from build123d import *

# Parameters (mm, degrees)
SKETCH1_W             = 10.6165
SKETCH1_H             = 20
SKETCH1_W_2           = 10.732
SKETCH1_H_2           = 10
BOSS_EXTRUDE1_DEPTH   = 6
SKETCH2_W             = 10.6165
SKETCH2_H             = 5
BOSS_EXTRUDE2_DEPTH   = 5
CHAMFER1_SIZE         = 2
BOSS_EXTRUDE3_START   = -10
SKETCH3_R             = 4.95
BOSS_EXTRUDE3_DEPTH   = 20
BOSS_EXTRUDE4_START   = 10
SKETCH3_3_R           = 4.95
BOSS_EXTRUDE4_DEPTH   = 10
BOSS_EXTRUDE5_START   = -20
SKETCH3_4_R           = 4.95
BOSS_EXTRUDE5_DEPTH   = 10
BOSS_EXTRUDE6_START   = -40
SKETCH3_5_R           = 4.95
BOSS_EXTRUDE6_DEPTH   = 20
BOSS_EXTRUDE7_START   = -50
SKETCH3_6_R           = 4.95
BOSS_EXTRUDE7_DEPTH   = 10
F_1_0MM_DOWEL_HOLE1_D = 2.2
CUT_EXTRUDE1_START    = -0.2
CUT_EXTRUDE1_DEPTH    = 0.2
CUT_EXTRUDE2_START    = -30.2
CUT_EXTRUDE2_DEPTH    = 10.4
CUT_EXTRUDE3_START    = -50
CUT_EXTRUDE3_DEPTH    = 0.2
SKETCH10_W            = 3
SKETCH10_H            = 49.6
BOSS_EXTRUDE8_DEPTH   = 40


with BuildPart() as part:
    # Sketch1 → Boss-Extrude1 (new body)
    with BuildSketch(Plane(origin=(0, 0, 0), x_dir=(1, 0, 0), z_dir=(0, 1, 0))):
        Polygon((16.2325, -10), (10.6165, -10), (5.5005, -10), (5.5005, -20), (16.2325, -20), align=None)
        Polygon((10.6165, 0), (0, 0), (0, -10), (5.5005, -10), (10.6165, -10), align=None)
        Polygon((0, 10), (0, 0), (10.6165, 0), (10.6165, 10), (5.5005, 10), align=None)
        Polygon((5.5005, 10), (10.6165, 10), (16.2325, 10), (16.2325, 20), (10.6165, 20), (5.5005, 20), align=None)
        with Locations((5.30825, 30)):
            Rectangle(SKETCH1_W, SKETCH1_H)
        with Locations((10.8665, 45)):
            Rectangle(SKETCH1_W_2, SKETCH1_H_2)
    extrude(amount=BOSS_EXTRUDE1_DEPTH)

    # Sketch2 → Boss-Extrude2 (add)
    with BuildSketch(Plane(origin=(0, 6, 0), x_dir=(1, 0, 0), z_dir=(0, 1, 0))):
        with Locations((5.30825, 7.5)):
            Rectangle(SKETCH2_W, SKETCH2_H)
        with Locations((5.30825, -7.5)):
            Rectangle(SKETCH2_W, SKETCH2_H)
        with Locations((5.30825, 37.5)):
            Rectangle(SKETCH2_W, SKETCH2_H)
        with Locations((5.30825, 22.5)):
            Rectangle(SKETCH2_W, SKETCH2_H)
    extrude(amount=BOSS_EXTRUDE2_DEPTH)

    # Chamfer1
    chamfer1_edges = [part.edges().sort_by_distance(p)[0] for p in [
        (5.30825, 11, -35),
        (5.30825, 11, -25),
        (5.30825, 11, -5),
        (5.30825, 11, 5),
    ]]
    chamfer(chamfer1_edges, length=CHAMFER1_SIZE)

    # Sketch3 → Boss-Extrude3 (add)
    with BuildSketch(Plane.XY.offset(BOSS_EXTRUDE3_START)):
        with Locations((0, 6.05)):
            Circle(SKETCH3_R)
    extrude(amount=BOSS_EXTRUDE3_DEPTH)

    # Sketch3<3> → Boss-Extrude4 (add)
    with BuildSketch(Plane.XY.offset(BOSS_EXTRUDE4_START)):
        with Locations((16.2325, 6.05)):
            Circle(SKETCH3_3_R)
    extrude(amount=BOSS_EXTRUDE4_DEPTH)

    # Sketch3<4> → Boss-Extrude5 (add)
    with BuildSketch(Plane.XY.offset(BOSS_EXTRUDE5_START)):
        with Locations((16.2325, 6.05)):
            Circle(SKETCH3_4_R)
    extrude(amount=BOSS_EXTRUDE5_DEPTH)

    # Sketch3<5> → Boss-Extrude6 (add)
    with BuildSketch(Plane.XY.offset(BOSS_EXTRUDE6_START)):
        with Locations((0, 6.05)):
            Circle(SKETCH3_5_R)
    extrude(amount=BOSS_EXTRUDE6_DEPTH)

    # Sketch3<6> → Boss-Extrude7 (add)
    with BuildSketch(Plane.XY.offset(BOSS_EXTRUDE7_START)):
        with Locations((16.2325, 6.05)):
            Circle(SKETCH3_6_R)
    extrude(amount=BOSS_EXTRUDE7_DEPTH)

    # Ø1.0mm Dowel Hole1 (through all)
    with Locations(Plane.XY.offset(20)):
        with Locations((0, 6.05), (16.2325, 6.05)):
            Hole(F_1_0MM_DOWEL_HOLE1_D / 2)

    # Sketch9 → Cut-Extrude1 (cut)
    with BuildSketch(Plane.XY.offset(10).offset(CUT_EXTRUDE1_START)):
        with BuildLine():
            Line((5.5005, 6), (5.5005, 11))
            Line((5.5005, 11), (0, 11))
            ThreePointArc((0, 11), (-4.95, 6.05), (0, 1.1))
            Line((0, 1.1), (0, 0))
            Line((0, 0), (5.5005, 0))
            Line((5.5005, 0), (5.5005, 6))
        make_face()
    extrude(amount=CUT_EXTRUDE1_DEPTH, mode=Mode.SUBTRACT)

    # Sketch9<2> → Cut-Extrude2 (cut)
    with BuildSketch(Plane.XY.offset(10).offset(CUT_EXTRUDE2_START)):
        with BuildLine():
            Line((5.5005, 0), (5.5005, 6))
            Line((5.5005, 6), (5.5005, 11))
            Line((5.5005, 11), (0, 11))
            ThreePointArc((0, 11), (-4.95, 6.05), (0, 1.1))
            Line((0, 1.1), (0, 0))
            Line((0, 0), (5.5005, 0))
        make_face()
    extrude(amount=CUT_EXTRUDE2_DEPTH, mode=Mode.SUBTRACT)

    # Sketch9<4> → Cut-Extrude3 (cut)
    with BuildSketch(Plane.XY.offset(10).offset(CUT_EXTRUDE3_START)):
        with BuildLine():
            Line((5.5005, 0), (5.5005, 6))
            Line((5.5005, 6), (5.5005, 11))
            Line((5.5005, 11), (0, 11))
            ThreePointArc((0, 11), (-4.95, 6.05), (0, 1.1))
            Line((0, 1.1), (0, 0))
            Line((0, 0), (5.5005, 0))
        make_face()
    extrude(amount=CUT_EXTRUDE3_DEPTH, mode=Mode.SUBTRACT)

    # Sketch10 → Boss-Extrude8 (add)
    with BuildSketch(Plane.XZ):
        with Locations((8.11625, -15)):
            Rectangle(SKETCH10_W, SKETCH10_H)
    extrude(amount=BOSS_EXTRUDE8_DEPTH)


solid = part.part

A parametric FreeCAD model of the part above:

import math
import FreeCAD as App
import Part
import Sketcher
from FreeCAD import Vector


def edges_at(feature, points):
    """Names of the edges that pass closest to the given points."""
    edges = feature.Shape.Edges
    near = lambda p: min(range(len(edges)), key=lambda i: edges[i].distToShape(Part.Vertex(*p))[0])
    return sorted({f"Edge{near(p) + 1}" for p in points})

doc = App.newDocument("Part")
body = doc.addObject("PartDesign::Body", "Body")

# Sketch on XZ plane
sketch1 = body.newObject("Sketcher::SketchObject", "Sketch")
sketch1.AttachmentSupport = (doc.getObject("XZ_Plane"), [""])
sketch1.MapMode = "FlatFace"
sketch1.addGeometry([
    Part.LineSegment(Vector(16, 10, 0), Vector(11, 10, 0)),  # 0
    Part.LineSegment(Vector(11, 10, 0), Vector(11, -10, 0)),  # 1
    Part.LineSegment(Vector(11, -10, 0), Vector(16, -10, 0)),  # 2
    Part.LineSegment(Vector(16, -10, 0), Vector(16, -20, 0)),  # 3
    Part.LineSegment(Vector(16, -20, 0), Vector(11, -20, 0)),  # 4
    Part.LineSegment(Vector(11, -20, 0), Vector(11, -40, 0)),  # 5
    Part.LineSegment(Vector(11, -40, 0), Vector(16, -40, 0)),  # 6
    Part.LineSegment(Vector(16, -40, 0), Vector(16, -50, 0)),  # 7
    Part.LineSegment(Vector(16, -50, 0), Vector(6, -50, 0)),  # 8
    Part.LineSegment(Vector(6, -50, 0), Vector(6, -40, 0)),  # 9
    Part.LineSegment(Vector(6, -40, 0), Vector(0, -40, 0)),  # 10
    Part.LineSegment(Vector(0, -40, 0), Vector(0, -20, 0)),  # 11
    Part.LineSegment(Vector(0, -20, 0), Vector(6, -20, 0)),  # 12
    Part.LineSegment(Vector(6, -20, 0), Vector(6, -10, 0)),  # 13
    Part.LineSegment(Vector(6, -10, 0), Vector(0, -10, 0)),  # 14
    Part.LineSegment(Vector(0, -10, 0), Vector(0, 10, 0)),  # 15
    Part.LineSegment(Vector(0, 10, 0), Vector(6, 10, 0)),  # 16
    Part.LineSegment(Vector(6, 10, 0), Vector(6, 20, 0)),  # 17
    Part.LineSegment(Vector(6, 20, 0), Vector(16, 20, 0)),  # 18
    Part.LineSegment(Vector(16, 20, 0), Vector(16, 10, 0)),  # 19
], False)
sketch1.addConstraint([
    Sketcher.Constraint("Coincident", 0, 2, 1, 1),
    Sketcher.Constraint("Coincident", 1, 2, 2, 1),
    Sketcher.Constraint("Coincident", 2, 2, 3, 1),
    Sketcher.Constraint("Coincident", 3, 2, 4, 1),
    Sketcher.Constraint("Coincident", 4, 2, 5, 1),
    Sketcher.Constraint("Coincident", 5, 2, 6, 1),
    Sketcher.Constraint("Coincident", 6, 2, 7, 1),
    Sketcher.Constraint("Coincident", 7, 2, 8, 1),
    Sketcher.Constraint("Coincident", 8, 2, 9, 1),
    Sketcher.Constraint("Coincident", 9, 2, 10, 1),
    Sketcher.Constraint("Coincident", 10, 2, 11, 1),
    Sketcher.Constraint("Coincident", 11, 2, 12, 1),
    Sketcher.Constraint("Coincident", 12, 2, 13, 1),
    Sketcher.Constraint("Coincident", 13, 2, 14, 1),
    Sketcher.Constraint("Coincident", 14, 2, 15, 1),
    Sketcher.Constraint("Coincident", 15, 2, 16, 1),
    Sketcher.Constraint("Coincident", 16, 2, 17, 1),
    Sketcher.Constraint("Coincident", 17, 2, 18, 1),
    Sketcher.Constraint("Coincident", 18, 2, 19, 1),
    Sketcher.Constraint("Coincident", 19, 2, 0, 1),
    Sketcher.Constraint("Horizontal", 0),
    Sketcher.Constraint("Vertical", 1),
    Sketcher.Constraint("Horizontal", 2),
    Sketcher.Constraint("Vertical", 3),
    Sketcher.Constraint("Horizontal", 4),
    Sketcher.Constraint("Vertical", 5),
    Sketcher.Constraint("Horizontal", 6),
    Sketcher.Constraint("Vertical", 7),
    Sketcher.Constraint("Horizontal", 8),
    Sketcher.Constraint("Vertical", 9),
    Sketcher.Constraint("Horizontal", 10),
    Sketcher.Constraint("Vertical", 11),
    Sketcher.Constraint("Horizontal", 12),
    Sketcher.Constraint("Vertical", 13),
    Sketcher.Constraint("Horizontal", 14),
    Sketcher.Constraint("Vertical", 15),
    Sketcher.Constraint("Horizontal", 16),
    Sketcher.Constraint("Vertical", 17),
    Sketcher.Constraint("Horizontal", 18),
    Sketcher.Constraint("Vertical", 19),
    Sketcher.Constraint("Symmetric", 14, 2, 15, 2, -1, 1),
    Sketcher.Constraint("Symmetric", 12, 2, 17, 2, -1),
    Sketcher.Constraint("Symmetric", 3, 2, 18, 2, -1),
    Sketcher.Constraint("PointOnObject", 10, 2, -2),
    Sketcher.Constraint("Horizontal", 6, 2, 9, 2),
    Sketcher.Constraint("Horizontal", 2, 2, 13, 2),
    Sketcher.Constraint("Horizontal", 0, 2, 15, 2),
    Sketcher.Constraint("Vertical", 1, 2, 4, 2),
    Sketcher.Constraint("Vertical", 3, 2, 6, 2),
    Sketcher.Constraint("Vertical", 9, 2, 12, 2),
    Sketcher.Constraint("Equal", 1, 5),
    Sketcher.Constraint("Equal", 3, 7),
    Sketcher.Constraint("DistanceY", 1, 2, 1, 1, 20.0),
    Sketcher.Constraint("DistanceY", 3, 2, 3, 1, 10.0),
    Sketcher.Constraint("DistanceX", 0, 2, 0, 1, 5.616),
    Sketcher.Constraint("DistanceX", 8, 2, 8, 1, 10.732),
    Sketcher.Constraint("DistanceX", 10, 2, 10, 1, 5.5005),
])
pad1 = body.newObject("PartDesign::Pad", "Pad")
pad1.Profile = sketch1
pad1.Length = 6
pad1.Reversed = True

# Sketch on XZ plane
sketch2 = body.newObject("Sketcher::SketchObject", "Sketch001")
sketch2.AttachmentSupport = (doc.getObject("XZ_Plane"), [""])
sketch2.MapMode = "FlatFace"
sketch2.AttachmentOffset = App.Placement(Vector(0, 0, -6), App.Rotation())
sketch2.addGeometry([
    Part.LineSegment(Vector(0, -10, 0), Vector(0, -5, 0)),  # 0
    Part.LineSegment(Vector(0, -5, 0), Vector(11, -5, 0)),  # 1
    Part.LineSegment(Vector(11, -5, 0), Vector(11, -10, 0)),  # 2
    Part.LineSegment(Vector(11, -10, 0), Vector(0, -10, 0)),  # 3
    Part.LineSegment(Vector(0, 5, 0), Vector(0, 10, 0)),  # 4
    Part.LineSegment(Vector(0, 10, 0), Vector(11, 10, 0)),  # 5
    Part.LineSegment(Vector(11, 10, 0), Vector(11, 5, 0)),  # 6
    Part.LineSegment(Vector(11, 5, 0), Vector(0, 5, 0)),  # 7
    Part.LineSegment(Vector(0, -40, 0), Vector(0, -35, 0)),  # 8
    Part.LineSegment(Vector(0, -35, 0), Vector(11, -35, 0)),  # 9
    Part.LineSegment(Vector(11, -35, 0), Vector(11, -40, 0)),  # 10
    Part.LineSegment(Vector(11, -40, 0), Vector(0, -40, 0)),  # 11
    Part.LineSegment(Vector(0, -25, 0), Vector(0, -20, 0)),  # 12
    Part.LineSegment(Vector(0, -20, 0), Vector(11, -20, 0)),  # 13
    Part.LineSegment(Vector(11, -20, 0), Vector(11, -25, 0)),  # 14
    Part.LineSegment(Vector(11, -25, 0), Vector(0, -25, 0)),  # 15
], False)
sketch2.addConstraint([
    Sketcher.Constraint("Coincident", 0, 2, 1, 1),
    Sketcher.Constraint("Coincident", 1, 2, 2, 1),
    Sketcher.Constraint("Coincident", 2, 2, 3, 1),
    Sketcher.Constraint("Coincident", 3, 2, 0, 1),
    Sketcher.Constraint("Coincident", 4, 2, 5, 1),
    Sketcher.Constraint("Coincident", 5, 2, 6, 1),
    Sketcher.Constraint("Coincident", 6, 2, 7, 1),
    Sketcher.Constraint("Coincident", 7, 2, 4, 1),
    Sketcher.Constraint("Coincident", 8, 2, 9, 1),
    Sketcher.Constraint("Coincident", 9, 2, 10, 1),
    Sketcher.Constraint("Coincident", 10, 2, 11, 1),
    Sketcher.Constraint("Coincident", 11, 2, 8, 1),
    Sketcher.Constraint("Coincident", 12, 2, 13, 1),
    Sketcher.Constraint("Coincident", 13, 2, 14, 1),
    Sketcher.Constraint("Coincident", 14, 2, 15, 1),
    Sketcher.Constraint("Coincident", 15, 2, 12, 1),
    Sketcher.Constraint("Vertical", 0),
    Sketcher.Constraint("Horizontal", 1),
    Sketcher.Constraint("Vertical", 2),
    Sketcher.Constraint("Horizontal", 3),
    Sketcher.Constraint("Vertical", 4),
    Sketcher.Constraint("Horizontal", 5),
    Sketcher.Constraint("Vertical", 6),
    Sketcher.Constraint("Horizontal", 7),
    Sketcher.Constraint("Vertical", 8),
    Sketcher.Constraint("Horizontal", 9),
    Sketcher.Constraint("Vertical", 10),
    Sketcher.Constraint("Horizontal", 11),
    Sketcher.Constraint("Vertical", 12),
    Sketcher.Constraint("Horizontal", 13),
    Sketcher.Constraint("Vertical", 14),
    Sketcher.Constraint("Horizontal", 15),
    Sketcher.Constraint("Symmetric", 3, 2, 4, 2, -1, 1),
    Sketcher.Constraint("Symmetric", 1, 2, 6, 2, -1),
    Sketcher.Constraint("PointOnObject", 0, 2, -2),
    Sketcher.Constraint("PointOnObject", 8, 2, -2),
    Sketcher.Constraint("PointOnObject", 12, 2, -2),
    Sketcher.Constraint("Vertical", 6, 2, 9, 2),
    Sketcher.Constraint("Vertical", 10, 2, 13, 2),
    Sketcher.Constraint("Equal", 6, 8),
    Sketcher.Constraint("Equal", 10, 12),
    Sketcher.Constraint("DistanceY", 0, 1, 0, 2, 5.0),
    Sketcher.Constraint("DistanceY", 0, 2, -1, 1, 5.0),
    Sketcher.Constraint("DistanceY", 8, 2, -1, 1, 35.0),
    Sketcher.Constraint("DistanceY", 12, 2, -1, 1, 20.0),
    Sketcher.Constraint("DistanceX", 1, 1, 1, 2, 10.6165),
])
pad2 = body.newObject("PartDesign::Pad", "Pad001")
pad2.Profile = sketch2
pad2.Length = 5
pad2.Reversed = True
doc.recompute()

chamfer = body.newObject("PartDesign::Chamfer", "Chamfer")
chamfer.Base = (pad2, edges_at(pad2, [
    (5.308, 11, -35),
    (5.308, 11, -25),
    (5.308, 11, -5),
    (5.308, 11, 5),
]))
chamfer.Size = 2

# Sketch on XY plane
sketch3 = body.newObject("Sketcher::SketchObject", "Sketch002")
sketch3.AttachmentSupport = (doc.getObject("XY_Plane"), [""])
sketch3.MapMode = "FlatFace"
sketch3.AttachmentOffset = App.Placement(Vector(0, 0, -10), App.Rotation())
sketch3.addGeometry(Part.Circle(Vector(0, 6, 0), Vector(0, 0, 1), 5), False)
sketch3.addConstraint([
    Sketcher.Constraint("PointOnObject", 0, 3, -2),
    Sketcher.Constraint("Diameter", 0, 9.9),
    Sketcher.Constraint("DistanceY", -1, 1, 0, 3, 6.05),
])
pad3 = body.newObject("PartDesign::Pad", "Pad002")
pad3.Profile = sketch3
pad3.Length = 20

# Sketch on XY plane
sketch4 = body.newObject("Sketcher::SketchObject", "Sketch003")
sketch4.AttachmentSupport = (doc.getObject("XY_Plane"), [""])
sketch4.MapMode = "FlatFace"
sketch4.AttachmentOffset = App.Placement(Vector(0, 0, 10), App.Rotation())
sketch4.addGeometry(Part.Circle(Vector(16.2, 6, 0), Vector(0, 0, 1), 5), False)
sketch4.addConstraint([
    Sketcher.Constraint("Diameter", 0, 9.9),
    Sketcher.Constraint("DistanceY", -1, 1, 0, 3, 6.05),
    Sketcher.Constraint("DistanceX", -1, 1, 0, 3, 16.2325),
])
pad4 = body.newObject("PartDesign::Pad", "Pad003")
pad4.Profile = sketch4
pad4.Length = 10

# Sketch on XY plane
sketch5 = body.newObject("Sketcher::SketchObject", "Sketch004")
sketch5.AttachmentSupport = (doc.getObject("XY_Plane"), [""])
sketch5.MapMode = "FlatFace"
sketch5.AttachmentOffset = App.Placement(Vector(0, 0, -20), App.Rotation())
sketch5.addGeometry(Part.Circle(Vector(16.2, 6, 0), Vector(0, 0, 1), 5), False)
sketch5.addConstraint([
    Sketcher.Constraint("Diameter", 0, 9.9),
    Sketcher.Constraint("DistanceY", -1, 1, 0, 3, 6.05),
    Sketcher.Constraint("DistanceX", -1, 1, 0, 3, 16.2325),
])
pad5 = body.newObject("PartDesign::Pad", "Pad004")
pad5.Profile = sketch5
pad5.Length = 10

# Sketch on XY plane
sketch6 = body.newObject("Sketcher::SketchObject", "Sketch005")
sketch6.AttachmentSupport = (doc.getObject("XY_Plane"), [""])
sketch6.MapMode = "FlatFace"
sketch6.AttachmentOffset = App.Placement(Vector(0, 0, -40), App.Rotation())
sketch6.addGeometry(Part.Circle(Vector(0, 6, 0), Vector(0, 0, 1), 5), False)
sketch6.addConstraint([
    Sketcher.Constraint("PointOnObject", 0, 3, -2),
    Sketcher.Constraint("Diameter", 0, 9.9),
    Sketcher.Constraint("DistanceY", -1, 1, 0, 3, 6.05),
])
pad6 = body.newObject("PartDesign::Pad", "Pad005")
pad6.Profile = sketch6
pad6.Length = 20

# Sketch on XY plane
sketch7 = body.newObject("Sketcher::SketchObject", "Sketch006")
sketch7.AttachmentSupport = (doc.getObject("XY_Plane"), [""])
sketch7.MapMode = "FlatFace"
sketch7.AttachmentOffset = App.Placement(Vector(0, 0, -50), App.Rotation())
sketch7.addGeometry(Part.Circle(Vector(16.2, 6, 0), Vector(0, 0, 1), 5), False)
sketch7.addConstraint([
    Sketcher.Constraint("Diameter", 0, 9.9),
    Sketcher.Constraint("DistanceY", -1, 1, 0, 3, 6.05),
    Sketcher.Constraint("DistanceX", -1, 1, 0, 3, 16.2325),
])
pad7 = body.newObject("PartDesign::Pad", "Pad006")
pad7.Profile = sketch7
pad7.Length = 10

# Sketch on XY plane
sketch8 = body.newObject("Sketcher::SketchObject", "Sketch007")
sketch8.AttachmentSupport = (doc.getObject("XY_Plane"), [""])
sketch8.MapMode = "FlatFace"
sketch8.AttachmentOffset = App.Placement(Vector(0, 0, 20), App.Rotation())
sketch8.addGeometry([
    Part.Circle(Vector(0, 6, 0), Vector(0, 0, 1), 1.1),
    Part.Circle(Vector(16.2, 6, 0), Vector(0, 0, 1), 1.1),
], False)
sketch8.addConstraint([
    Sketcher.Constraint("Equal", 0, 1),
    Sketcher.Constraint("PointOnObject", 0, 3, -2),
    Sketcher.Constraint("Horizontal", 0, 3, 1, 3),
    Sketcher.Constraint("Diameter", 0, 2.2),
    Sketcher.Constraint("DistanceY", -1, 1, 0, 3, 6.05),
    Sketcher.Constraint("DistanceX", -1, 1, 1, 3, 16.2325),
])
doc.recompute()
hole = body.newObject("PartDesign::Hole", "Hole")
hole.Profile = sketch8
hole.ThreadType = "None"
hole.Diameter = 2.2
hole.DepthType = "ThroughAll"

# Sketch on XY plane
sketch9 = body.newObject("Sketcher::SketchObject", "Sketch008")
sketch9.AttachmentSupport = (doc.getObject("XY_Plane"), [""])
sketch9.MapMode = "FlatFace"
sketch9.AttachmentOffset = App.Placement(Vector(0, 0, 9.8), App.Rotation())
sketch9.addGeometry([
    Part.LineSegment(Vector(5.5, 11, 0), Vector(0, 11, 0)),  # 0
    Part.ArcOfCircle(Part.Circle(Vector(0, 6, 0), Vector(0, 0, 1), 5), math.radians(90), math.radians(270)),  # 1
    Part.LineSegment(Vector(0, 1.1, 0), Vector(0, 0, 0)),  # 2
    Part.LineSegment(Vector(0, 0, 0), Vector(5.5, 0, 0)),  # 3
    Part.LineSegment(Vector(5.5, 0, 0), Vector(5.5, 11, 0)),  # 4
], False)
sketch9.addConstraint([
    Sketcher.Constraint("Tangent", 0, 2, 1, 1),
    Sketcher.Constraint("Coincident", 1, 2, 2, 1),
    Sketcher.Constraint("Coincident", 2, 2, 3, 1),
    Sketcher.Constraint("Coincident", 3, 2, 4, 1),
    Sketcher.Constraint("Coincident", 4, 2, 0, 1),
    Sketcher.Constraint("Horizontal", 0),
    Sketcher.Constraint("Vertical", 2),
    Sketcher.Constraint("Horizontal", 3),
    Sketcher.Constraint("Vertical", 4),
    Sketcher.Constraint("Coincident", 2, 2, -1, 1),
    Sketcher.Constraint("PointOnObject", 1, 3, -2),
    Sketcher.Constraint("DistanceY", 4, 1, 4, 2, 11.0),
    Sketcher.Constraint("Radius", 1, 4.95),
    Sketcher.Constraint("DistanceX", 0, 2, 0, 1, 5.5005),
])
pocket1 = body.newObject("PartDesign::Pocket", "Pocket")
pocket1.Profile = sketch9
pocket1.Length = 0.2
pocket1.Reversed = True

# Sketch on XY plane
sketch10 = body.newObject("Sketcher::SketchObject", "Sketch009")
sketch10.AttachmentSupport = (doc.getObject("XY_Plane"), [""])
sketch10.MapMode = "FlatFace"
sketch10.AttachmentOffset = App.Placement(Vector(0, 0, -20.2), App.Rotation())
sketch10.addGeometry([
    Part.LineSegment(Vector(5.5, 0, 0), Vector(5.5, 11, 0)),  # 0
    Part.LineSegment(Vector(5.5, 11, 0), Vector(0, 11, 0)),  # 1
    Part.ArcOfCircle(Part.Circle(Vector(0, 6, 0), Vector(0, 0, 1), 5), math.radians(90), math.radians(270)),  # 2
    Part.LineSegment(Vector(0, 1.1, 0), Vector(0, 0, 0)),  # 3
    Part.LineSegment(Vector(0, 0, 0), Vector(5.5, 0, 0)),  # 4
], False)
sketch10.addConstraint([
    Sketcher.Constraint("Coincident", 0, 2, 1, 1),
    Sketcher.Constraint("Tangent", 1, 2, 2, 1),
    Sketcher.Constraint("Coincident", 2, 2, 3, 1),
    Sketcher.Constraint("Coincident", 3, 2, 4, 1),
    Sketcher.Constraint("Coincident", 4, 2, 0, 1),
    Sketcher.Constraint("Vertical", 0),
    Sketcher.Constraint("Horizontal", 1),
    Sketcher.Constraint("Vertical", 3),
    Sketcher.Constraint("Horizontal", 4),
    Sketcher.Constraint("Coincident", 3, 2, -1, 1),
    Sketcher.Constraint("PointOnObject", 2, 3, -2),
    Sketcher.Constraint("DistanceY", 0, 1, 0, 2, 11.0),
    Sketcher.Constraint("Radius", 2, 4.95),
    Sketcher.Constraint("DistanceX", 1, 2, 1, 1, 5.5005),
])
pocket2 = body.newObject("PartDesign::Pocket", "Pocket001")
pocket2.Profile = sketch10
pocket2.Length = 10.4
pocket2.Reversed = True

# Sketch on XY plane
sketch11 = body.newObject("Sketcher::SketchObject", "Sketch010")
sketch11.AttachmentSupport = (doc.getObject("XY_Plane"), [""])
sketch11.MapMode = "FlatFace"
sketch11.AttachmentOffset = App.Placement(Vector(0, 0, -40), App.Rotation())
sketch11.addGeometry([
    Part.LineSegment(Vector(5.5, 0, 0), Vector(5.5, 11, 0)),  # 0
    Part.LineSegment(Vector(5.5, 11, 0), Vector(0, 11, 0)),  # 1
    Part.ArcOfCircle(Part.Circle(Vector(0, 6, 0), Vector(0, 0, 1), 5), math.radians(90), math.radians(270)),  # 2
    Part.LineSegment(Vector(0, 1.1, 0), Vector(0, 0, 0)),  # 3
    Part.LineSegment(Vector(0, 0, 0), Vector(5.5, 0, 0)),  # 4
], False)
sketch11.addConstraint([
    Sketcher.Constraint("Coincident", 0, 2, 1, 1),
    Sketcher.Constraint("Tangent", 1, 2, 2, 1),
    Sketcher.Constraint("Coincident", 2, 2, 3, 1),
    Sketcher.Constraint("Coincident", 3, 2, 4, 1),
    Sketcher.Constraint("Coincident", 4, 2, 0, 1),
    Sketcher.Constraint("Vertical", 0),
    Sketcher.Constraint("Horizontal", 1),
    Sketcher.Constraint("Vertical", 3),
    Sketcher.Constraint("Horizontal", 4),
    Sketcher.Constraint("Coincident", 3, 2, -1, 1),
    Sketcher.Constraint("PointOnObject", 2, 3, -2),
    Sketcher.Constraint("DistanceY", 0, 1, 0, 2, 11.0),
    Sketcher.Constraint("Radius", 2, 4.95),
    Sketcher.Constraint("DistanceX", 1, 2, 1, 1, 5.5005),
])
pocket3 = body.newObject("PartDesign::Pocket", "Pocket002")
pocket3.Profile = sketch11
pocket3.Length = 0.2
pocket3.Reversed = True

# Sketch on XZ plane
sketch12 = body.newObject("Sketcher::SketchObject", "Sketch011")
sketch12.AttachmentSupport = (doc.getObject("XZ_Plane"), [""])
sketch12.MapMode = "FlatFace"
sketch12.addGeometry([
    Part.LineSegment(Vector(6.6, 9.8, 0), Vector(6.6, -39.8, 0)),
    Part.LineSegment(Vector(6.6, -39.8, 0), Vector(9.6, -39.8, 0)),
    Part.LineSegment(Vector(9.6, -39.8, 0), Vector(9.6, 9.8, 0)),
    Part.LineSegment(Vector(9.6, 9.8, 0), Vector(6.6, 9.8, 0)),
], False)
sketch12.addConstraint([
    Sketcher.Constraint("Coincident", 0, 2, 1, 1),
    Sketcher.Constraint("Coincident", 1, 2, 2, 1),
    Sketcher.Constraint("Coincident", 2, 2, 3, 1),
    Sketcher.Constraint("Coincident", 3, 2, 0, 1),
    Sketcher.Constraint("Vertical", 0),
    Sketcher.Constraint("Horizontal", 1),
    Sketcher.Constraint("Vertical", 2),
    Sketcher.Constraint("Horizontal", 3),
    Sketcher.Constraint("DistanceX", 1, 1, 1, 2, 3.0),
    Sketcher.Constraint("DistanceY", 0, 2, 0, 1, 49.6),
    Sketcher.Constraint("DistanceY", 0, 2, -1, 1, 39.8),
    Sketcher.Constraint("DistanceX", -1, 1, 0, 2, 6.61625),
])
pad8 = body.newObject("PartDesign::Pad", "Pad007")
pad8.Profile = sketch12
pad8.Length = 40

doc.recompute()
